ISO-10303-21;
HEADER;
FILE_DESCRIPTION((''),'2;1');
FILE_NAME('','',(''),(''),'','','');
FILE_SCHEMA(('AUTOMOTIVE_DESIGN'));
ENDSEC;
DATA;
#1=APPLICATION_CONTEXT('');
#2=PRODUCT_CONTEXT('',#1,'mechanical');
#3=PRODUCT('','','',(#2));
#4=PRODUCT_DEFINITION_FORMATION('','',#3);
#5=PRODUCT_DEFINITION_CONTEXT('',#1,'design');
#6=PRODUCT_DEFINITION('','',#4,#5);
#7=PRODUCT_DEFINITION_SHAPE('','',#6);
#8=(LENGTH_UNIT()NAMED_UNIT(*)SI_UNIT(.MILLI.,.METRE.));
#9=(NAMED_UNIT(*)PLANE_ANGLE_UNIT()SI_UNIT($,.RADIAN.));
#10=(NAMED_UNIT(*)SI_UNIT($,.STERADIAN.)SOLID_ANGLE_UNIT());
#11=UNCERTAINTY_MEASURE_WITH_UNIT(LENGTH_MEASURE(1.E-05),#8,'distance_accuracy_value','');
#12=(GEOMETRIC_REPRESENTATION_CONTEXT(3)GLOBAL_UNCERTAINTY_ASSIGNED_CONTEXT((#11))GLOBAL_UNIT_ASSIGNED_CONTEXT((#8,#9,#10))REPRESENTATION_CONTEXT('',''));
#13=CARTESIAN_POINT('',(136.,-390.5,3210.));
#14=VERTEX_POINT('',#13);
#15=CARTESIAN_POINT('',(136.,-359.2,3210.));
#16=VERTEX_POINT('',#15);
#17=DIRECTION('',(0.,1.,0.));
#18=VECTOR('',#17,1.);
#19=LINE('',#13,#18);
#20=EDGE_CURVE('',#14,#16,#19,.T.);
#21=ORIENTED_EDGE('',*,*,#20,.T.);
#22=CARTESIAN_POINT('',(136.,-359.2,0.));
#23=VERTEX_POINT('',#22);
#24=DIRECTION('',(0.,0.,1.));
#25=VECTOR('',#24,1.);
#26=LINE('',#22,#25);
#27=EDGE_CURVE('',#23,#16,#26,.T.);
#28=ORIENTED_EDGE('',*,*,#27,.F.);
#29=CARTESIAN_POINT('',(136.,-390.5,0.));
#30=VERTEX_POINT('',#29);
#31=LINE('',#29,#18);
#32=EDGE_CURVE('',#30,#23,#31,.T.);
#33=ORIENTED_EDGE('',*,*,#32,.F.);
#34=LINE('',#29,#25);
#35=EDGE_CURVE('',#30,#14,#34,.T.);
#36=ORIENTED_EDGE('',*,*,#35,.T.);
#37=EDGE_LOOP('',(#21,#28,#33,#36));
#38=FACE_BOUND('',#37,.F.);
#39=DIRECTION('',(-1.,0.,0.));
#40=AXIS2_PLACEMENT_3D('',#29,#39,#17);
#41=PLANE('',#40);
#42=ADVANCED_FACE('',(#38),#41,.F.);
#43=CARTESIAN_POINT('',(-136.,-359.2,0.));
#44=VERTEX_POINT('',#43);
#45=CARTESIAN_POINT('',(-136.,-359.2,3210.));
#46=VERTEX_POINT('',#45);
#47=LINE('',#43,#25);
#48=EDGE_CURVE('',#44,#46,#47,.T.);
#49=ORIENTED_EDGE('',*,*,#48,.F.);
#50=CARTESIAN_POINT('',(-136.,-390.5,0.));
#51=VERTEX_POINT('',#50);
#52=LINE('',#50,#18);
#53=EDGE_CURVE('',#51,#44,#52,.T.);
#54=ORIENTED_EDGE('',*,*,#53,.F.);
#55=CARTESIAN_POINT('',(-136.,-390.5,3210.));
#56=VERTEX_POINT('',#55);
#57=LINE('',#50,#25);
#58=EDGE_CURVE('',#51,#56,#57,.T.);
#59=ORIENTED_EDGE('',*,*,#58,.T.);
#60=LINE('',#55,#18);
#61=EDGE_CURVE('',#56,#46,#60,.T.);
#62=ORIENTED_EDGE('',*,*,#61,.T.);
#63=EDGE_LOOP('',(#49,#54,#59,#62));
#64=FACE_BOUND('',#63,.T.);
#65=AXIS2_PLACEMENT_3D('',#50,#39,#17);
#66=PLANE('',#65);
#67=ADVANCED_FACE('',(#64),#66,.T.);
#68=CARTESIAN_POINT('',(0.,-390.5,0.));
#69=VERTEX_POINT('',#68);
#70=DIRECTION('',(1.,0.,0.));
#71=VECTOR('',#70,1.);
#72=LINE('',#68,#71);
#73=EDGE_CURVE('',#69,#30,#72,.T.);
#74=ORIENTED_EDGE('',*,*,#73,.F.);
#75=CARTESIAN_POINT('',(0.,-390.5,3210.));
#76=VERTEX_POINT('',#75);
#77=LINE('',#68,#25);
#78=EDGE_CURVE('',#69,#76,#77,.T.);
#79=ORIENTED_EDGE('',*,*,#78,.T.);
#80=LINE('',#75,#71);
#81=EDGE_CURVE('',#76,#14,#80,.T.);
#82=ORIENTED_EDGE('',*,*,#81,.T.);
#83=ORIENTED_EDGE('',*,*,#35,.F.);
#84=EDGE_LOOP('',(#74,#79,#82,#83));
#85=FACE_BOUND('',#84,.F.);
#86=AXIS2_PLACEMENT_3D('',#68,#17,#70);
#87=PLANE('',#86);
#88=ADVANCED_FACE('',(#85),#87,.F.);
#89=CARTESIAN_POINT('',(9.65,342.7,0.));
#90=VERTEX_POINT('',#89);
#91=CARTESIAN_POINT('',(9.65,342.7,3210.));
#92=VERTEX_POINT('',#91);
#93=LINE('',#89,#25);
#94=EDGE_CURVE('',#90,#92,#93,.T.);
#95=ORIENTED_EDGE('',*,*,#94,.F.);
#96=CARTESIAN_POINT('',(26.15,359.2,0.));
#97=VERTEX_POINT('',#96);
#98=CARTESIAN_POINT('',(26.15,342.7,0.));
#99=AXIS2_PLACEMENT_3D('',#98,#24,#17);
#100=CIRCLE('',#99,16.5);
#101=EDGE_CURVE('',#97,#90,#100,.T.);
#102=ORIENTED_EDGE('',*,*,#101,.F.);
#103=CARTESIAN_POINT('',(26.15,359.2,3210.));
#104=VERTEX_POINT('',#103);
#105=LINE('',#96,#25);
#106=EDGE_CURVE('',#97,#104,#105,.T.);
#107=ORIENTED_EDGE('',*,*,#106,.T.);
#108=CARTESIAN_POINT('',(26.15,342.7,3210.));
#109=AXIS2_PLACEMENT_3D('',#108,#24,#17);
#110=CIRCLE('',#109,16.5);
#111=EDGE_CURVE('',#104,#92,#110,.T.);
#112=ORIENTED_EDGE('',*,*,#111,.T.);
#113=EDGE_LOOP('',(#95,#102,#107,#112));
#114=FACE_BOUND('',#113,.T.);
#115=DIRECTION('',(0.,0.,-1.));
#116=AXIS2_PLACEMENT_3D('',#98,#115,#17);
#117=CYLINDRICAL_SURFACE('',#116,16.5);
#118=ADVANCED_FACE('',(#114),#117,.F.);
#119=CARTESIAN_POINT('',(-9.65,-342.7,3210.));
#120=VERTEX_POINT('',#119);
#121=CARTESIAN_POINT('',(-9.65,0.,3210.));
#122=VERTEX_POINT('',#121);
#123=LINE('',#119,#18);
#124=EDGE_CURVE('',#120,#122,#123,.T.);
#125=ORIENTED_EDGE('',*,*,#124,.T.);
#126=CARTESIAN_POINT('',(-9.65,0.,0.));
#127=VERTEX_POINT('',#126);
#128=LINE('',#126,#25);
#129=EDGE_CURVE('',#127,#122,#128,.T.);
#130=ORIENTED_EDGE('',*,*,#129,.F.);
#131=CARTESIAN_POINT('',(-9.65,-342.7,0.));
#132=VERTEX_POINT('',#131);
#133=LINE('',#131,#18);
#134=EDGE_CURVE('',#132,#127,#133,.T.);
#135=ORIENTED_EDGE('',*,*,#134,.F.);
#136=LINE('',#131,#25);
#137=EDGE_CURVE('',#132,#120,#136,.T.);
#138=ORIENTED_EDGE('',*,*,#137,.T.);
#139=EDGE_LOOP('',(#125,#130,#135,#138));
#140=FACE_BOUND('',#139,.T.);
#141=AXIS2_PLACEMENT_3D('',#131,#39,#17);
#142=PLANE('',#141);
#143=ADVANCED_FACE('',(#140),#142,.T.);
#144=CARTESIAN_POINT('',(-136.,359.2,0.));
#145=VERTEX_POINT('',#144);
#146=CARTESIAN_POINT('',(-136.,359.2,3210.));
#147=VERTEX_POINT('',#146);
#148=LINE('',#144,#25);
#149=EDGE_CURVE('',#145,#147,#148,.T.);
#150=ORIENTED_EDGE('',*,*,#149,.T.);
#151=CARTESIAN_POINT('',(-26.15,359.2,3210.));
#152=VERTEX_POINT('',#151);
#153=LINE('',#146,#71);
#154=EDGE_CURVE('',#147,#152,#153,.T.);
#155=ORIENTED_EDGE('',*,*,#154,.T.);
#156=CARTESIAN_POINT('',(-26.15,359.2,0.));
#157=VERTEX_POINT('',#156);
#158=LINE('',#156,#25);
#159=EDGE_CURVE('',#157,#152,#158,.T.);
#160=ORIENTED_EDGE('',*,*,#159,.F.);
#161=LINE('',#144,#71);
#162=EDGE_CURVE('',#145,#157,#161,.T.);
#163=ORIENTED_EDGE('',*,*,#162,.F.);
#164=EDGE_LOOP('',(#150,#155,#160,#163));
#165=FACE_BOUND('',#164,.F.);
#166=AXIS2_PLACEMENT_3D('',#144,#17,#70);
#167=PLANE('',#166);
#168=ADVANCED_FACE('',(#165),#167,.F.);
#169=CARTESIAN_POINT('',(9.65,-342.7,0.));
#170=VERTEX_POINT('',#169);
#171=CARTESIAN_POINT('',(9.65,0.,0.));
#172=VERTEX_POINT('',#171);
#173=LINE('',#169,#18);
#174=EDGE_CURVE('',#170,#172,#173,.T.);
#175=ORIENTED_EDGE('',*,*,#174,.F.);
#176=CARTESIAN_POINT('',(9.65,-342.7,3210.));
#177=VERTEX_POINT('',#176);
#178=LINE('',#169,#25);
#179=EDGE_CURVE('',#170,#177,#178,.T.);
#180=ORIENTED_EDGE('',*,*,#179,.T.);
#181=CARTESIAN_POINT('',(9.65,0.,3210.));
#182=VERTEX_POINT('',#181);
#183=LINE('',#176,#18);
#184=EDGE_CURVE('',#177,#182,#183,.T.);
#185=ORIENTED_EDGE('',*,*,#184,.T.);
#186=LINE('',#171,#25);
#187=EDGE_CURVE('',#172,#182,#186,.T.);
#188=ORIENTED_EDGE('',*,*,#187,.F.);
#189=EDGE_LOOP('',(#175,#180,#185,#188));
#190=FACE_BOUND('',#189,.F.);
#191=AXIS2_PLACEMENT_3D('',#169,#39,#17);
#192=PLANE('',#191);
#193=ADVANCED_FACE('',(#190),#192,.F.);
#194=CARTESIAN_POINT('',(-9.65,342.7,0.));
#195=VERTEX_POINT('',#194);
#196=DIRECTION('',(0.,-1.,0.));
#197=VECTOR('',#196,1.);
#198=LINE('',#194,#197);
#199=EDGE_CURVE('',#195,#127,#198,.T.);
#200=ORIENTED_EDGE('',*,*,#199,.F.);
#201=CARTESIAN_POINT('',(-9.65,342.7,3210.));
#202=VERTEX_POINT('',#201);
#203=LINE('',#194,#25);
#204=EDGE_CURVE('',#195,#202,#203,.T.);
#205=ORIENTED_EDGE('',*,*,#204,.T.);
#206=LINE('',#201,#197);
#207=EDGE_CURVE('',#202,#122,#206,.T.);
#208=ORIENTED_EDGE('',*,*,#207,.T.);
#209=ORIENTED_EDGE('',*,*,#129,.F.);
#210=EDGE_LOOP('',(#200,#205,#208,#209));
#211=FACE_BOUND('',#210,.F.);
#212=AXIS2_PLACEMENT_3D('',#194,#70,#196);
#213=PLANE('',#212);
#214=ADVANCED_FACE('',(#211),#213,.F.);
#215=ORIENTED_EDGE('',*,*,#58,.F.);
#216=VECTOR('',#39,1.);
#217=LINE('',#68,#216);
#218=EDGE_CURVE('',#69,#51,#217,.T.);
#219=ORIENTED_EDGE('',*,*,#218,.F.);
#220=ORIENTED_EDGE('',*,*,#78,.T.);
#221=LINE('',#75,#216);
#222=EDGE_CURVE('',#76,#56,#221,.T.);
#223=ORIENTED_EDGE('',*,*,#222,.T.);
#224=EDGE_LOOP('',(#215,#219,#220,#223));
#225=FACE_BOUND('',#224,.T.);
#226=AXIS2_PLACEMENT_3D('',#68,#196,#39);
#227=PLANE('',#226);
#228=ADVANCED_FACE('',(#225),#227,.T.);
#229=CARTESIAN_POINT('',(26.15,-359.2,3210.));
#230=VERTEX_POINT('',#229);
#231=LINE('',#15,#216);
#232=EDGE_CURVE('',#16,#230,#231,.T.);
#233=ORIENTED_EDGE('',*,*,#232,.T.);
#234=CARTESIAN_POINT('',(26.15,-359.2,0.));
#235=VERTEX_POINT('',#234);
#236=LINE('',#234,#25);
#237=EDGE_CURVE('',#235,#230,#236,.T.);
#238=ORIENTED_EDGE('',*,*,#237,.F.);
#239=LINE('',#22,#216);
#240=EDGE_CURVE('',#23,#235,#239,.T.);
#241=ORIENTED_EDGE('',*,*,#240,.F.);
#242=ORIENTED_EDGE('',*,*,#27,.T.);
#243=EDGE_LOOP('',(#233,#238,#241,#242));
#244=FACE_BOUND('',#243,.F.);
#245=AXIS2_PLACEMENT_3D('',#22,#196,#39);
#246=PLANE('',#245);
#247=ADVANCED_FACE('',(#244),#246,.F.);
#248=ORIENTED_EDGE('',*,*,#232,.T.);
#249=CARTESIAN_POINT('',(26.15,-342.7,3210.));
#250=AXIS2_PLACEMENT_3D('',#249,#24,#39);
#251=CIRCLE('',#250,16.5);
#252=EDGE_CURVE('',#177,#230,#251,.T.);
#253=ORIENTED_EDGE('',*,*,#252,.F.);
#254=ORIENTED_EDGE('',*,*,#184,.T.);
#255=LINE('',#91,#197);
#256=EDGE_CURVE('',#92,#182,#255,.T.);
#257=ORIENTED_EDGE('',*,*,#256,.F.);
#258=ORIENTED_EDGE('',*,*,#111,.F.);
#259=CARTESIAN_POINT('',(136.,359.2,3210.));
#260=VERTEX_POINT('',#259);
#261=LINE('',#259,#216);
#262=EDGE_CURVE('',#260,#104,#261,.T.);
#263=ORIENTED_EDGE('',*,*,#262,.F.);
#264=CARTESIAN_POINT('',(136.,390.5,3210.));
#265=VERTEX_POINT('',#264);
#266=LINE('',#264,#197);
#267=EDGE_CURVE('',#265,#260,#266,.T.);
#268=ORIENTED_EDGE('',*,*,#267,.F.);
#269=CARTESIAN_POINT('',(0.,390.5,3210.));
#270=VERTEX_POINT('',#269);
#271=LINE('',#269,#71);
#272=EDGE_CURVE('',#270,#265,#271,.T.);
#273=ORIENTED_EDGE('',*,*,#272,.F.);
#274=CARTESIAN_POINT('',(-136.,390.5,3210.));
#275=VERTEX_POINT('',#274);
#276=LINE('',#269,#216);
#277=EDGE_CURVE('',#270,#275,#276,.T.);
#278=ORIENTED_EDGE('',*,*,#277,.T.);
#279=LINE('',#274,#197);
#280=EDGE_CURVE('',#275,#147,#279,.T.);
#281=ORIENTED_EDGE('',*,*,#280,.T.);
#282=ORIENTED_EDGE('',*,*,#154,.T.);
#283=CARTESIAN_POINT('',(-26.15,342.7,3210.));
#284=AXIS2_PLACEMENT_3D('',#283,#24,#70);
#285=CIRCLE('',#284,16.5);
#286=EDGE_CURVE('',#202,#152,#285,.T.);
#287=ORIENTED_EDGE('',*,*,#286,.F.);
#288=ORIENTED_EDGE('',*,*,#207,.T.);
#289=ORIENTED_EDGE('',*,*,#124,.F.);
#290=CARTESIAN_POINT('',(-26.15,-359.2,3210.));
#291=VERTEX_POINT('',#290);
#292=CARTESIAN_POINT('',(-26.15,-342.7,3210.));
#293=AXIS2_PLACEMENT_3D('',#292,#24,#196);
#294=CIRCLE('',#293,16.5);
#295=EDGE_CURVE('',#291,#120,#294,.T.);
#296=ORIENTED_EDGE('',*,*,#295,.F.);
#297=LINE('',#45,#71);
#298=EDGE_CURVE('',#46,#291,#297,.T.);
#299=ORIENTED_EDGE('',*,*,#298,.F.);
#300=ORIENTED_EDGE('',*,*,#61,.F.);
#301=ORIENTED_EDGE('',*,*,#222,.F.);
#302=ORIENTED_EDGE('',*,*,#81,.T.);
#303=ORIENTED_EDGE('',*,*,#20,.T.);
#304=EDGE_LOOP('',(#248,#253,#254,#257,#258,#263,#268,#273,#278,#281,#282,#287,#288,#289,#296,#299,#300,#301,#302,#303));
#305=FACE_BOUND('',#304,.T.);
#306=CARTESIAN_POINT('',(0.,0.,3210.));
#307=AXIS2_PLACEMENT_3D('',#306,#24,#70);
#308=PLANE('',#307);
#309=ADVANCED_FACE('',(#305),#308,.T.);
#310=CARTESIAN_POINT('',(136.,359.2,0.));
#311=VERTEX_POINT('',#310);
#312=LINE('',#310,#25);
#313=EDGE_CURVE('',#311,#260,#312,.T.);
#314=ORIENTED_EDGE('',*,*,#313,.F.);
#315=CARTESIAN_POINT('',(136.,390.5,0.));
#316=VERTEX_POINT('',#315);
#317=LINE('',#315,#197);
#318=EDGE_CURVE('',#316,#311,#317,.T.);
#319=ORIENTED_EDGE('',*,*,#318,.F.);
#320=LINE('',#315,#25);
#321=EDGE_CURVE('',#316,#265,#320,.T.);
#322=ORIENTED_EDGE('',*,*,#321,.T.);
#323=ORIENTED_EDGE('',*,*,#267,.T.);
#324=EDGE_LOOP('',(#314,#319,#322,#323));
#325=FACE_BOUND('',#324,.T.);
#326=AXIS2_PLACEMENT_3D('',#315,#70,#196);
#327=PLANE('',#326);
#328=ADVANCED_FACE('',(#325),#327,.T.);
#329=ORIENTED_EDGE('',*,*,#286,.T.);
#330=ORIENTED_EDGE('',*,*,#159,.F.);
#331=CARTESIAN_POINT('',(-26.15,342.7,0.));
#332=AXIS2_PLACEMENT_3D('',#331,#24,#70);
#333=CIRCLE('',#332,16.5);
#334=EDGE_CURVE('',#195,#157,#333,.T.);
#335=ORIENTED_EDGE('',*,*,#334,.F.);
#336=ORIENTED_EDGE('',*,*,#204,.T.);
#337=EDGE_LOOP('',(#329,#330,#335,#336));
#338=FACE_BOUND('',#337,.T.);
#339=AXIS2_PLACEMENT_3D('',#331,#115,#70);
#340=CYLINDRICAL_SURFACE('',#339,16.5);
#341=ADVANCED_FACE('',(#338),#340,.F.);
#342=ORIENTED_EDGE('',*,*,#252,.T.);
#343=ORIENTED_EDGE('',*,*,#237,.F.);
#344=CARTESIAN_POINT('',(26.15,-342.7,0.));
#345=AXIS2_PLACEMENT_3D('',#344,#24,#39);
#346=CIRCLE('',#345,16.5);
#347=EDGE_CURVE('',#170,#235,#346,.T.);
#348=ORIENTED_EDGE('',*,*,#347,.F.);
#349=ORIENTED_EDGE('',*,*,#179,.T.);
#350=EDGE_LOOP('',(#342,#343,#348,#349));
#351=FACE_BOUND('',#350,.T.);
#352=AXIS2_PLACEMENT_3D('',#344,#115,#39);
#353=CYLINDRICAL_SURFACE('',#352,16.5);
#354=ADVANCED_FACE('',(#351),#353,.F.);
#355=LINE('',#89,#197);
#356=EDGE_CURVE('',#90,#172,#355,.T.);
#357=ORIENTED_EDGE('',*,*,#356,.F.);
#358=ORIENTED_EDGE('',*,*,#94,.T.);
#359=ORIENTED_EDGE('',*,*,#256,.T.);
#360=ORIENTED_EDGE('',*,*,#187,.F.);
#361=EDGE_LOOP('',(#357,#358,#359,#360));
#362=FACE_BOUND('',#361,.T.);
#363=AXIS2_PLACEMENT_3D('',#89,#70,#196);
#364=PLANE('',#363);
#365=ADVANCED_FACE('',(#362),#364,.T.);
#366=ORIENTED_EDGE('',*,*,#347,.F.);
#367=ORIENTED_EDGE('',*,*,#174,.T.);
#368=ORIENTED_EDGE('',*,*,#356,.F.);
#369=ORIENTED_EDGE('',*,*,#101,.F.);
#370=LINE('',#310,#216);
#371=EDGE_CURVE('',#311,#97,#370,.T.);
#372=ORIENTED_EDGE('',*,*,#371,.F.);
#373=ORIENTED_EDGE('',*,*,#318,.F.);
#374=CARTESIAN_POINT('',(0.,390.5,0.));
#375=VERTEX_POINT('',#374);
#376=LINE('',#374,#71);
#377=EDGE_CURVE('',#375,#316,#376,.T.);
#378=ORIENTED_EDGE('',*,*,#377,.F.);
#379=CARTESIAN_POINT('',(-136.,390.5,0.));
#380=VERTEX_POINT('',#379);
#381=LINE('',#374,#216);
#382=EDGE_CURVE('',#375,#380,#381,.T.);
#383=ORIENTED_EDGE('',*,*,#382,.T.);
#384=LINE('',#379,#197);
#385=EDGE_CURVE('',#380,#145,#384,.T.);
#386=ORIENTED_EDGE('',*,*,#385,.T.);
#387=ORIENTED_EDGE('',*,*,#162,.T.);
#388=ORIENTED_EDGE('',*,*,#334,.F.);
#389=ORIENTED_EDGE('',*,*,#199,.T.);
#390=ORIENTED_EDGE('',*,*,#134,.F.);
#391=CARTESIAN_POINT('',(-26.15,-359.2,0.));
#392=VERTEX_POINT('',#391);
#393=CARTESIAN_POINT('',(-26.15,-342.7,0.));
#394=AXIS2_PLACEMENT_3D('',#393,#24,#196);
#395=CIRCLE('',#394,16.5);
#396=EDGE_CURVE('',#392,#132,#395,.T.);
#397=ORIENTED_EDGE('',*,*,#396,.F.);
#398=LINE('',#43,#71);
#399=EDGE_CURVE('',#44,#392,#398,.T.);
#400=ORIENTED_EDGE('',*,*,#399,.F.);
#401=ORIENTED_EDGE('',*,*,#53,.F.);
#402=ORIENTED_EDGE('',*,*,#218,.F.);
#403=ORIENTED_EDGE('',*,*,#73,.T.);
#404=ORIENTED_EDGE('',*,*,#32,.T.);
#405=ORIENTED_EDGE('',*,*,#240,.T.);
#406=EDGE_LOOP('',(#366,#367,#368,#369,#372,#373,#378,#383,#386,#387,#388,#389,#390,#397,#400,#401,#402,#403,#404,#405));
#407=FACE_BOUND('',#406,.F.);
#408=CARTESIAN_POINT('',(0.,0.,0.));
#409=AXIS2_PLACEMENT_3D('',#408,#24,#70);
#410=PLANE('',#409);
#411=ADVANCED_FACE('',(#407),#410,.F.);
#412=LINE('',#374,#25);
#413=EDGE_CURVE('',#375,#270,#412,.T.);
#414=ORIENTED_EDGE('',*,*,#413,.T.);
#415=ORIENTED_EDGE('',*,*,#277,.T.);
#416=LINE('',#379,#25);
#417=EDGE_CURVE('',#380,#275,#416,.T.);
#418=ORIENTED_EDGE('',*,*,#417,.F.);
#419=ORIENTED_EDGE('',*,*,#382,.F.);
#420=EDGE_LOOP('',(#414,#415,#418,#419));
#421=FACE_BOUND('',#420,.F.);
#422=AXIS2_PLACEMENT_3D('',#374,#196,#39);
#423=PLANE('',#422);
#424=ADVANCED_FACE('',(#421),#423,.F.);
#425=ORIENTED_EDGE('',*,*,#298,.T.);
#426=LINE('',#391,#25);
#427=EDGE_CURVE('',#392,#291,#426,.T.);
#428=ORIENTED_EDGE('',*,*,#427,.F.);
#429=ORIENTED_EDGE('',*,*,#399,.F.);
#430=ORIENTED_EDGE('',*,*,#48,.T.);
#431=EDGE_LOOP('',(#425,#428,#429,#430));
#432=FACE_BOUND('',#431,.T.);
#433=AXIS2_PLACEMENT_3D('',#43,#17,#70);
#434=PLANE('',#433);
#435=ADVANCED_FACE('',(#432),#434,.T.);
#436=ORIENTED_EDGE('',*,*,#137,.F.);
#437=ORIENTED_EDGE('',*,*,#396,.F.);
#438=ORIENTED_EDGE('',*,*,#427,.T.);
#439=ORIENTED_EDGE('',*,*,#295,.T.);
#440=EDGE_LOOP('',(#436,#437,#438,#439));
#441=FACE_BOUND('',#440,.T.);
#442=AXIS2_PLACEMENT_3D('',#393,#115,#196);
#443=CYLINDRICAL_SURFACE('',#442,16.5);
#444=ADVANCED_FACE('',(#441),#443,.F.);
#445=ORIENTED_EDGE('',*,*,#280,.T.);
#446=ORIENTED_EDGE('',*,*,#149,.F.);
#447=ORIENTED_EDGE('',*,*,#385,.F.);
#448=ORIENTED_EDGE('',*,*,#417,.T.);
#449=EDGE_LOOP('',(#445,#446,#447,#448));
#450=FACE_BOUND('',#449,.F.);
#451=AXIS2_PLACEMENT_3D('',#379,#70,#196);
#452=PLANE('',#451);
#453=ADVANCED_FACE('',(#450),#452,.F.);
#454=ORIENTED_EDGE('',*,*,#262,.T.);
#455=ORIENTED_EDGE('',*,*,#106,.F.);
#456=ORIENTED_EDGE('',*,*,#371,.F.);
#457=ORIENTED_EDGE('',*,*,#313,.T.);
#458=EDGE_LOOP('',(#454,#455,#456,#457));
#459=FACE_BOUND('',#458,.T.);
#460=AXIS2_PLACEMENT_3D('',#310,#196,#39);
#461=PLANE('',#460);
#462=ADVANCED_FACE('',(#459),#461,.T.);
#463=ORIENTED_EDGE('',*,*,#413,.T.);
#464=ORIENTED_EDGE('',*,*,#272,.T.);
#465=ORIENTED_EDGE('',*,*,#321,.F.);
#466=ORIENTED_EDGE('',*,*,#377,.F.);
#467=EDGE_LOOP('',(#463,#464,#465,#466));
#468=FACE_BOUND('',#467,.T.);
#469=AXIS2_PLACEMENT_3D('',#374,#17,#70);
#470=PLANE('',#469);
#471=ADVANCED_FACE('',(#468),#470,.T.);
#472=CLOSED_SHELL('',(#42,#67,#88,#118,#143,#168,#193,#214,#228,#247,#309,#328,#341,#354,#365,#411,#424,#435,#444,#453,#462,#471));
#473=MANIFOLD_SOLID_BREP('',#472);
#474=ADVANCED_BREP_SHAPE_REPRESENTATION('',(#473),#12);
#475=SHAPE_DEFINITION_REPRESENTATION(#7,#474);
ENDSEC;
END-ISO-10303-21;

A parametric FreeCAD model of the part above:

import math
import FreeCAD as App
import Part
import Sketcher

V = App.Vector

doc = App.newDocument("Part")
body = doc.addObject("PartDesign::Body", "Body")

# Sketch on XY plane
sketch1 = doc.addObject("Sketcher::SketchObject", "Sketch")
body.addObject(sketch1)
sketch1.AttachmentSupport = (doc.XY_Plane, [""])
sketch1.MapMode = "FlatFace"
sketch1.addGeometry([
    Part.LineSegment(V(-136, -359, 0), V(-136, -390, 0)),  # 0
    Part.LineSegment(V(-136, -390, 0), V(136, -390, 0)),  # 1
    Part.LineSegment(V(136, -390, 0), V(136, -359, 0)),  # 2
    Part.LineSegment(V(136, -359, 0), V(26, -359, 0)),  # 3
    Part.ArcOfCircle(Part.Circle(V(26, -343, 0), V(0, 0, 1), 16), math.radians(180), math.radians(270)),  # 4
    Part.LineSegment(V(10, -343, 0), V(10, 343, 0)),  # 5
    Part.ArcOfCircle(Part.Circle(V(26, 343, 0), V(0, 0, 1), 16), math.radians(90), math.radians(180)),  # 6
    Part.LineSegment(V(26, 359, 0), V(136, 359, 0)),  # 7
    Part.LineSegment(V(136, 359, 0), V(136, 390, 0)),  # 8
    Part.LineSegment(V(136, 390, 0), V(-136, 390, 0)),  # 9
    Part.LineSegment(V(-136, 390, 0), V(-136, 359, 0)),  # 10
    Part.LineSegment(V(-136, 359, 0), V(-26, 359, 0)),  # 11
    Part.ArcOfCircle(Part.Circle(V(-26, 343, 0), V(0, 0, 1), 16), math.radians(0), math.radians(90)),  # 12
    Part.LineSegment(V(-10, 343, 0), V(-10, -343, 0)),  # 13
    Part.ArcOfCircle(Part.Circle(V(-26, -343, 0), V(0, 0, 1), 16), math.radians(-90), math.radians(0)),  # 14
    Part.LineSegment(V(-26, -359, 0), V(-136, -359, 0)),  # 15
], False)
sketch1.addConstraint([
    Sketcher.Constraint("Coincident", 0, 2, 1, 1),
    Sketcher.Constraint("Coincident", 1, 2, 2, 1),
    Sketcher.Constraint("Coincident", 2, 2, 3, 1),
    Sketcher.Constraint("Tangent", 3, 2, 4, 2),
    Sketcher.Constraint("Tangent", 4, 1, 5, 1),
    Sketcher.Constraint("Tangent", 5, 2, 6, 2),
    Sketcher.Constraint("Tangent", 6, 1, 7, 1),
    Sketcher.Constraint("Coincident", 7, 2, 8, 1),
    Sketcher.Constraint("Coincident", 8, 2, 9, 1),
    Sketcher.Constraint("Coincident", 9, 2, 10, 1),
    Sketcher.Constraint("Coincident", 10, 2, 11, 1),
    Sketcher.Constraint("Tangent", 11, 2, 12, 2),
    Sketcher.Constraint("Tangent", 12, 1, 13, 1),
    Sketcher.Constraint("Tangent", 13, 2, 14, 2),
    Sketcher.Constraint("Tangent", 14, 1, 15, 1),
    Sketcher.Constraint("Coincident", 15, 2, 0, 1),
    Sketcher.Constraint("Vertical", 0),
    Sketcher.Constraint("Horizontal", 1),
    Sketcher.Constraint("Vertical", 2),
    Sketcher.Constraint("Horizontal", 3),
    Sketcher.Constraint("Vertical", 5),
    Sketcher.Constraint("Horizontal", 7),
    Sketcher.Constraint("Vertical", 8),
    Sketcher.Constraint("Horizontal", 9),
    Sketcher.Constraint("Vertical", 10),
    Sketcher.Constraint("Horizontal", 11),
    Sketcher.Constraint("Vertical", 13),
    Sketcher.Constraint("Horizontal", 15),
    Sketcher.Constraint("Equal", 4, 6),
    Sketcher.Constraint("Equal", 6, 12),
    Sketcher.Constraint("Equal", 12, 14),
    Sketcher.Constraint("Symmetric", 4, 3, 12, 3, -1, 1),
    Sketcher.Constraint("Symmetric", 0, 2, 8, 2, -1, 1),
    Sketcher.Constraint("Symmetric", 7, 2, 10, 2, -2),
    Sketcher.Constraint("Symmetric", 2, 2, 15, 2, -2),
    Sketcher.Constraint("Radius", 4, 16.5),
    Sketcher.Constraint("DistanceY", 0, 2, 0, 1, 31.3),
    Sketcher.Constraint("DistanceX", 0, 2, -1, 1, 136.0),
    Sketcher.Constraint("DistanceY", 0, 2, -1, 1, 390.5),
    Sketcher.Constraint("DistanceX", -1, 1, 4, 1, 9.65),
])
pad1 = doc.addObject("PartDesign::Pad", "Pad")
body.addObject(pad1)
pad1.Profile = sketch1
pad1.Length = 3210

doc.recompute()
